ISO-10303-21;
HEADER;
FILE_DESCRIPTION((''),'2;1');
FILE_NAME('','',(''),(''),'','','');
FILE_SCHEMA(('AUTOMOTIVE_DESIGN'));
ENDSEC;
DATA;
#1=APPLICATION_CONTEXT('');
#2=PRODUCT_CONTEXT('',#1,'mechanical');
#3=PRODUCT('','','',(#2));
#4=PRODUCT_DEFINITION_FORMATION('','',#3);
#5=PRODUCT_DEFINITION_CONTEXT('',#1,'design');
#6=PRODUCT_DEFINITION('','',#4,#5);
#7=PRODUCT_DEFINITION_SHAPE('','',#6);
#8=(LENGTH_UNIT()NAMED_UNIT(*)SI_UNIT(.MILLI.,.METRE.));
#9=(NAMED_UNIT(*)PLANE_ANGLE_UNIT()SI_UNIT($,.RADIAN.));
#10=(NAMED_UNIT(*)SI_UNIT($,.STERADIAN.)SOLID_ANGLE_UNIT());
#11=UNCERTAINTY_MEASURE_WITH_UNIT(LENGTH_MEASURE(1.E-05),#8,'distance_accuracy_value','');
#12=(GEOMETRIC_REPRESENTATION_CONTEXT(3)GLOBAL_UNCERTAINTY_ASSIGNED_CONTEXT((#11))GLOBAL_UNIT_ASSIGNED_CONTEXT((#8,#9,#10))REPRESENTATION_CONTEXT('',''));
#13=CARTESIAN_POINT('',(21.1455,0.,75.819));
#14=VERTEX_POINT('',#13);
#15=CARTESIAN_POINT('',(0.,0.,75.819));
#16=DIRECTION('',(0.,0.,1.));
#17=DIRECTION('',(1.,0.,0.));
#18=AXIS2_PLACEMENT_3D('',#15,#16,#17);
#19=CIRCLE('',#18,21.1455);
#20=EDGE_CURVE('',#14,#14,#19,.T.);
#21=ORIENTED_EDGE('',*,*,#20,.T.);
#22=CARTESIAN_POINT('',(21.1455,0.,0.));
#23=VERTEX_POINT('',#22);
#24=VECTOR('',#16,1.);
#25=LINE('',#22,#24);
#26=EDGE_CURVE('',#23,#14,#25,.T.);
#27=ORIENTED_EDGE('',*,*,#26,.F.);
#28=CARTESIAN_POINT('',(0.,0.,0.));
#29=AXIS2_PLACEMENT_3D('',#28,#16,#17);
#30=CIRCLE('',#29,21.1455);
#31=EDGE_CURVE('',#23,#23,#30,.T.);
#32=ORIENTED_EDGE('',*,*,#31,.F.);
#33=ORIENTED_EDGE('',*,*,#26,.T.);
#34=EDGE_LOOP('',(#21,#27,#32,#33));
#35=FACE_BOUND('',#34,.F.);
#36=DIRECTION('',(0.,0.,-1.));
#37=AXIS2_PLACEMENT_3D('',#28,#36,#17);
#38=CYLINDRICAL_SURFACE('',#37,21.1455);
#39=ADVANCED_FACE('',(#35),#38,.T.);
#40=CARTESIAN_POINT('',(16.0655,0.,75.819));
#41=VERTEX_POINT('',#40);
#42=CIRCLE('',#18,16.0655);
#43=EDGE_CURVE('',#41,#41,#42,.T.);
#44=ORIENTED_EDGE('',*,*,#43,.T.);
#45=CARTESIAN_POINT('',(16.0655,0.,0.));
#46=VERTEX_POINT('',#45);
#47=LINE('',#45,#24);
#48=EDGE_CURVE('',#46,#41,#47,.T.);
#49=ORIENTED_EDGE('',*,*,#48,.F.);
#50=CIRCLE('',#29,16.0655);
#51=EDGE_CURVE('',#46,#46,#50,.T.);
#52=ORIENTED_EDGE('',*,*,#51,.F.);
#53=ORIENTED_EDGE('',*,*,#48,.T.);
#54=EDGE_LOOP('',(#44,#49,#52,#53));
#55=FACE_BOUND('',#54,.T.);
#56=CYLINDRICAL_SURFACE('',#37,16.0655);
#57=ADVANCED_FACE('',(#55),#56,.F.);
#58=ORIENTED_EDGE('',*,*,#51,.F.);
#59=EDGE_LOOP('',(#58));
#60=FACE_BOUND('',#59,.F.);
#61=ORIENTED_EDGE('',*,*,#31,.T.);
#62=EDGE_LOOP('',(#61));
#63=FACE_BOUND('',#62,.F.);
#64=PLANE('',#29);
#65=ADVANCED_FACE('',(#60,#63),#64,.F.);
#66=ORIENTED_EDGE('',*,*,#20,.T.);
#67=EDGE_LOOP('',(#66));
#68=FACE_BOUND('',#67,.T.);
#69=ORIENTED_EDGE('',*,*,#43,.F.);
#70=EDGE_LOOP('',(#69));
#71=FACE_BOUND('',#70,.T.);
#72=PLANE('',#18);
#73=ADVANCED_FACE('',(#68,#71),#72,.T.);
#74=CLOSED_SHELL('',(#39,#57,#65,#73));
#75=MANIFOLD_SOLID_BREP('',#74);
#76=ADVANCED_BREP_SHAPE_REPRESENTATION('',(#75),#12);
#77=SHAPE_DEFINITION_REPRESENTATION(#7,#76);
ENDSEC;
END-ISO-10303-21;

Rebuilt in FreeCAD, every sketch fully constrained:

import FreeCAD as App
import Part
import Sketcher
Q = App.Units.Quantity

doc = App.newDocument("Part")
body = doc.addObject("PartDesign::Body", "Body")

# Sketch on XY plane
sketch1 = body.newObject("Sketcher::SketchObject", "Sketch")
sketch1.AttachmentSupport = (doc.getObject("XY_Plane"), [""])
sketch1.MapMode = "FlatFace"
sketch1.addGeometry([
    Part.Circle(App.Vector(0, 0, 0), App.Vector(0, 0, 1), 21),
    Part.Circle(App.Vector(0, 0, 0), App.Vector(0, 0, 1), 16),
], False)
sketch1.addConstraint([
    Sketcher.Constraint("Coincident", 0, 3, -1, 1),
    Sketcher.Constraint("Coincident", 1, 3, -1, 1),
    Sketcher.Constraint("Diameter", 1, Q("1.265 in")),
    Sketcher.Constraint("Diameter", 0, Q("1.665 in")),
])
pad1 = body.newObject("PartDesign::Pad", "Pad")
pad1.Profile = sketch1
pad1.Length = Q("2.985 in")

doc.recompute()
